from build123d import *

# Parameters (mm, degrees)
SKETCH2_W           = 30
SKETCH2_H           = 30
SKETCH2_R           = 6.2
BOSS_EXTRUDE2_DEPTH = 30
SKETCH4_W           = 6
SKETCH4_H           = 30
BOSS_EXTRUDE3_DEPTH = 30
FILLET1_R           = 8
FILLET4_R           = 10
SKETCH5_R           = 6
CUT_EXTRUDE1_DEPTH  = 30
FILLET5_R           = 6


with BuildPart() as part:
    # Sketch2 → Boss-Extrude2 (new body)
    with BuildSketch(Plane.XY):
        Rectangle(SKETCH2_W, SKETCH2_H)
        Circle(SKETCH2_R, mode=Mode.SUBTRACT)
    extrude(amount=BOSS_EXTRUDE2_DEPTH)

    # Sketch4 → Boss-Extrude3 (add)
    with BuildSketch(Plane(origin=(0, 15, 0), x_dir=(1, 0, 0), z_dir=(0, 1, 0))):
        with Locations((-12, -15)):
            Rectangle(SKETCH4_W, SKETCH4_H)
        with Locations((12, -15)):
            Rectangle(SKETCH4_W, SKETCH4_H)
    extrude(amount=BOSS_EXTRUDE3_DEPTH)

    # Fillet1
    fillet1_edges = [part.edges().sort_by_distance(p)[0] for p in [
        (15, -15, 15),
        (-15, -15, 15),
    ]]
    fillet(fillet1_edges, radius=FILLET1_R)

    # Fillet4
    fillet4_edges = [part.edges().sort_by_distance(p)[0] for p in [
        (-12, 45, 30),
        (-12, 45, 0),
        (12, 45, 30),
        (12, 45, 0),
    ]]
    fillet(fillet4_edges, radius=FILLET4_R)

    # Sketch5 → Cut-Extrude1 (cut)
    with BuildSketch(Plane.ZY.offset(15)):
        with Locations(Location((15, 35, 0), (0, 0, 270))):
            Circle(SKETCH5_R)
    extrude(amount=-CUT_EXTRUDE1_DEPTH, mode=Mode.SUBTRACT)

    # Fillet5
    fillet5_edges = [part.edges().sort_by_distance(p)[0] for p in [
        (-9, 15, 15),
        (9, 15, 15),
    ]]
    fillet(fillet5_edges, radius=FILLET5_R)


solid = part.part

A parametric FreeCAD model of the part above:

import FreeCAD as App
import Part
import Sketcher


def edges_at(feature, points):
    """Names of the edges that pass closest to the given points."""
    edges = feature.Shape.Edges
    near = lambda p: min(range(len(edges)), key=lambda i: edges[i].distToShape(Part.Vertex(*p))[0])
    return sorted({f"Edge{near(p) + 1}" for p in points})


def add_polygon(sketch, points):
    """Adds a closed chain of lines whose ends are joined by coincident constraints."""
    first, n = sketch.GeometryCount, len(points)
    for a, b in zip(points, points[1:] + points[:1]):
        sketch.addGeometry(Part.LineSegment(App.Vector(*a, 0), App.Vector(*b, 0)), False)
    for i in range(n):
        sketch.addConstraint(Sketcher.Constraint("Coincident", first + i, 2, first + (i + 1) % n, 1))

doc = App.newDocument("Part")
params = doc.addObject("Spreadsheet::Sheet", "Params")
for row, (alias, value) in enumerate([
    ("sketch1_diameter", "12.4 mm"),
    ("sketch1_width", "30 mm"),
    ("pad1_length", "30 mm"),
    ("sketch2_width", "6 mm"),
    ("sketch2_height", "30 mm"),
    ("pad2_length", "30 mm"),
    ("fillet_radius", "8 mm"),
    ("fillet2_radius", "10 mm"),
    ("sketch3_diameter", "12 mm"),
    ("pocket1_length", "30 mm"),
    ("fillet3_radius", "6 mm"),
], start=1):
    params.set(f"A{row}", alias)
    params.set(f"B{row}", "=" + value)
    params.setAlias(f"B{row}", alias)

body = doc.addObject("PartDesign::Body", "Body")

# Sketch on XY plane
sketch1 = body.newObject("Sketcher::SketchObject", "Sketch")
sketch1.AttachmentSupport = (doc.getObject("XY_Plane"), [""])
sketch1.MapMode = "FlatFace"
add_polygon(sketch1, [(-15, 15), (-15, -15), (15, -15), (15, 15)])  # lines 0-3
sketch1.addGeometry(Part.Circle(App.Vector(0, 0, 0), App.Vector(0, 0, 1), 6), False)  # 4
sketch1.addConstraint([
    Sketcher.Constraint("Vertical", 0),
    Sketcher.Constraint("Horizontal", 1),
    Sketcher.Constraint("Vertical", 2),
    Sketcher.Constraint("Horizontal", 3),
    Sketcher.Constraint("Coincident", 4, 3, -1, 1),
    Sketcher.Constraint("Symmetric", 0, 2, 2, 2, -1, 1),
    Sketcher.Constraint("Equal", 3, 0),
    Sketcher.Constraint("Diameter", 4, 12.4),
    Sketcher.Constraint("DistanceX", 1, 1, 1, 2, 30.0),
])
sketch1.setExpression("Constraints[11]", "Params.sketch1_diameter")
sketch1.setExpression("Constraints[12]", "Params.sketch1_width")
pad1 = body.newObject("PartDesign::Pad", "Pad")
pad1.Profile = sketch1
pad1.setExpression("Length", "Params.pad1_length")

# Sketch on XZ plane
sketch2 = body.newObject("Sketcher::SketchObject", "Sketch001")
sketch2.AttachmentSupport = (doc.getObject("XZ_Plane"), [""])
sketch2.MapMode = "FlatFace"
sketch2.AttachmentOffset = App.Placement(App.Vector(0, 0, -15), App.Rotation())
add_polygon(sketch2, [(-15, 0), (-15, 30), (-9, 30), (-9, 0)])  # lines 0-3
add_polygon(sketch2, [(9, 0), (9, 30), (15, 30), (15, 0)])  # lines 4-7
sketch2.addConstraint([
    Sketcher.Constraint("Vertical", 0),
    Sketcher.Constraint("Horizontal", 1),
    Sketcher.Constraint("Vertical", 2),
    Sketcher.Constraint("Horizontal", 3),
    Sketcher.Constraint("Vertical", 4),
    Sketcher.Constraint("Horizontal", 5),
    Sketcher.Constraint("Vertical", 6),
    Sketcher.Constraint("Horizontal", 7),
    Sketcher.Constraint("Symmetric", 3, 2, 6, 2, -1, 1),
    Sketcher.Constraint("Symmetric", 1, 2, 4, 2, -2),
    Sketcher.Constraint("PointOnObject", 2, 2, -1),
    Sketcher.Constraint("DistanceX", 1, 1, 1, 2, 6.0),
    Sketcher.Constraint("DistanceY", 0, 1, 0, 2, 30.0),
    Sketcher.Constraint("DistanceX", 0, 2, -1, 1, 15.0),
])
sketch2.setExpression("Constraints[19]", "Params.sketch2_width")
sketch2.setExpression("Constraints[20]", "Params.sketch2_height")
pad2 = body.newObject("PartDesign::Pad", "Pad001")
pad2.Profile = sketch2
pad2.setExpression("Length", "Params.pad2_length")
pad2.Reversed = True
doc.recompute()

fillet = body.newObject("PartDesign::Fillet", "Fillet")
fillet.Base = (pad2, edges_at(pad2, [(15, -15, 15), (-15, -15, 15)]))
fillet.setExpression("Radius", "Params.fillet_radius")
doc.recompute()

fillet2 = body.newObject("PartDesign::Fillet", "Fillet001")
fillet2.Base = (fillet, edges_at(fillet, [
    (-12, 45, 30),
    (-12, 45, 0),
    (12, 45, 30),
    (12, 45, 0),
]))
fillet2.setExpression("Radius", "Params.fillet2_radius")

# Sketch on YZ plane
sketch3 = body.newObject("Sketcher::SketchObject", "Sketch002")
sketch3.AttachmentSupport = (doc.getObject("YZ_Plane"), [""])
sketch3.MapMode = "FlatFace"
sketch3.AttachmentOffset = App.Placement(App.Vector(0, 0, -15), App.Rotation())
sketch3.addGeometry(Part.Circle(App.Vector(35, 15, 0), App.Vector(0, 0, 1), 6), False)
sketch3.addConstraint([
    Sketcher.Constraint("Diameter", 0, 12.0),
    Sketcher.Constraint("DistanceX", -1, 1, 0, 3, 35.0),
    Sketcher.Constraint("DistanceY", -1, 1, 0, 3, 15.0),
])
sketch3.setExpression("Constraints[0]", "Params.sketch3_diameter")
pocket1 = body.newObject("PartDesign::Pocket", "Pocket")
pocket1.Profile = sketch3
pocket1.setExpression("Length", "Params.pocket1_length")
pocket1.Reversed = True
doc.recompute()

fillet3 = body.newObject("PartDesign::Fillet", "Fillet002")
fillet3.Base = (pocket1, edges_at(pocket1, [(-9, 15, 15), (9, 15, 15)]))
fillet3.setExpression("Radius", "Params.fillet3_radius")

doc.recompute()
